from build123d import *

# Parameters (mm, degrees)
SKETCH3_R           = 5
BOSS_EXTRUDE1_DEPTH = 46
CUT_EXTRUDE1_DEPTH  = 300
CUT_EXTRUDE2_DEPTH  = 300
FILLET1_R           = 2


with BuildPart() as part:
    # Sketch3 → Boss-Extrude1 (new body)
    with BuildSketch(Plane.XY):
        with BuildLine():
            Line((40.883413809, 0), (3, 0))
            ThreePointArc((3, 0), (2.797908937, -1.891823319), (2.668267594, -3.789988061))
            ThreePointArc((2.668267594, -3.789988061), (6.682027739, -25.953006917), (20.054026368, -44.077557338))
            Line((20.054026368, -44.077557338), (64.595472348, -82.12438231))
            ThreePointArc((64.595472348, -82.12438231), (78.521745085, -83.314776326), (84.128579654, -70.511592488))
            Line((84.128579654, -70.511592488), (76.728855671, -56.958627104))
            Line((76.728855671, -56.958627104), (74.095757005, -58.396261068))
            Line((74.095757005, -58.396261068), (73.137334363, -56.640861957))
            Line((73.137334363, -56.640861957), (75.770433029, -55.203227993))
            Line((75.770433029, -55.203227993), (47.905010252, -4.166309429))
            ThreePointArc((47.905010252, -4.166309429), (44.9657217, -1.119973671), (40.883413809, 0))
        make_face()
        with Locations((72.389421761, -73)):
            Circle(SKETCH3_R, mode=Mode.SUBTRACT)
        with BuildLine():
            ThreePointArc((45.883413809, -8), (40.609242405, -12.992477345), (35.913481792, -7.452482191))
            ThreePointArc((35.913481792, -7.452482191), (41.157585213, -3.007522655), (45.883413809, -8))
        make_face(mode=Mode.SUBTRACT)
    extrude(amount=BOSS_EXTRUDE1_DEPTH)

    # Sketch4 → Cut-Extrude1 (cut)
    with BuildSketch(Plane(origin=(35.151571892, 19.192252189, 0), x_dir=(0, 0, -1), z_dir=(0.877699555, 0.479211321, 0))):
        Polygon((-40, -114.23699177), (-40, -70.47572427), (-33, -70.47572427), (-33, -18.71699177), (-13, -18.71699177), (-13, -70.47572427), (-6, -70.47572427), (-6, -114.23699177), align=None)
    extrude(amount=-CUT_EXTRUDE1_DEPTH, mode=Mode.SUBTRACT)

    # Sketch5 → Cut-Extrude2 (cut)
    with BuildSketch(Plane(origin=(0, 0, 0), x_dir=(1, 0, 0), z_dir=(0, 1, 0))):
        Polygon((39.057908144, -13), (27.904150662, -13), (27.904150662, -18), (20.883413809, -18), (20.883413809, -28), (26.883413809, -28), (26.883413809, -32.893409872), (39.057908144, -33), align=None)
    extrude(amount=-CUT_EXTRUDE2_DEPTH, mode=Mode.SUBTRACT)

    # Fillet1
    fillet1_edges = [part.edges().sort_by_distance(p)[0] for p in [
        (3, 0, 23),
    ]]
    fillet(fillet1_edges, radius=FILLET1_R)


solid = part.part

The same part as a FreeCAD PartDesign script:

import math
import FreeCAD as App
import Part
import Sketcher


def edges_at(feature, points):
    """Names of the edges that pass closest to the given points."""
    edges = feature.Shape.Edges
    near = lambda p: min(range(len(edges)), key=lambda i: edges[i].distToShape(Part.Vertex(*p))[0])
    return sorted({f"Edge{near(p) + 1}" for p in points})


def add_polygon(sketch, points):
    """Adds a closed chain of lines whose ends are joined by coincident constraints."""
    first, n = sketch.GeometryCount, len(points)
    for a, b in zip(points, points[1:] + points[:1]):
        sketch.addGeometry(Part.LineSegment(App.Vector(*a, 0), App.Vector(*b, 0)), False)
    for i in range(n):
        sketch.addConstraint(Sketcher.Constraint("Coincident", first + i, 2, first + (i + 1) % n, 1))

doc = App.newDocument("Part")
body = doc.addObject("PartDesign::Body", "Body")

# Sketch on XY plane
sketch1 = doc.addObject("Sketcher::SketchObject", "Sketch")
body.addObject(sketch1)
sketch1.AttachmentSupport = (doc.XY_Plane, [""])
sketch1.MapMode = "FlatFace"
sketch1.addGeometry([
    Part.LineSegment(App.Vector(40.883414, 0, 0), App.Vector(3, 0, 0)),  # 0
    Part.ArcOfCircle(Part.Circle(App.Vector(52.381463, -6.231803, 0), App.Vector(0, 0, 1), 49.773128), math.radians(172.807454), math.radians(177.188003)),  # 1
    Part.ArcOfCircle(Part.Circle(App.Vector(52.381463, -6.231803, 0), App.Vector(0, 0, 1), 49.773128), math.radians(177.188003), math.radians(229.496403)),  # 2
    Part.LineSegment(App.Vector(20.054026, -44.077557, 0), App.Vector(64.595472, -82.124382, 0)),  # 3
    Part.ArcOfCircle(Part.Circle(App.Vector(72.389422, -73, 0), App.Vector(0, 0, 1), 12), math.radians(-130.503597), math.radians(11.968113)),  # 4
    Part.LineSegment(App.Vector(84.12858, -70.511592, 0), App.Vector(76.728856, -56.958627, 0)),  # 5
    Part.LineSegment(App.Vector(76.728856, -56.958627, 0), App.Vector(74.095757, -58.396261, 0)),  # 6
    Part.LineSegment(App.Vector(74.095757, -58.396261, 0), App.Vector(73.137334, -56.640862, 0)),  # 7
    Part.LineSegment(App.Vector(73.137334, -56.640862, 0), App.Vector(75.770433, -55.203228, 0)),  # 8
    Part.LineSegment(App.Vector(75.770433, -55.203228, 0), App.Vector(47.90501, -4.166309, 0)),  # 9
    Part.ArcOfCircle(Part.Circle(App.Vector(40.883414, -8, 0), App.Vector(0, 0, 1), 8), math.radians(28.633905), math.radians(90)),  # 10
    Part.Circle(App.Vector(72.389422, -73, 0), App.Vector(0, 0, 1), 5),  # 11
    Part.ArcOfCircle(Part.Circle(App.Vector(40.883414, -8, 0), App.Vector(0, 0, 1), 5), math.radians(0), math.radians(173.713301)),  # 12
    Part.ArcOfCircle(Part.Circle(App.Vector(40.883414, -8, 0), App.Vector(0, 0, 1), 5), math.radians(173.713301), math.radians(360)),  # 13
], False)
sketch1.addConstraint([
    Sketcher.Constraint("Coincident", 0, 2, 1, 1),
    Sketcher.Constraint("Coincident", 1, 2, 2, 1),
    Sketcher.Constraint("Coincident", 2, 2, 3, 1),
    Sketcher.Constraint("Coincident", 3, 2, 4, 1),
    Sketcher.Constraint("Coincident", 4, 2, 5, 1),
    Sketcher.Constraint("Coincident", 5, 2, 6, 1),
    Sketcher.Constraint("Coincident", 6, 2, 7, 1),
    Sketcher.Constraint("Coincident", 7, 2, 8, 1),
    Sketcher.Constraint("Coincident", 8, 2, 9, 1),
    Sketcher.Constraint("Coincident", 9, 2, 10, 1),
    Sketcher.Constraint("Coincident", 10, 2, 0, 1),
    Sketcher.Constraint("Coincident", 12, 1, 13, 2),
    Sketcher.Constraint("Coincident", 13, 1, 12, 2),
    Sketcher.Constraint("Horizontal", 0),
    Sketcher.Constraint("Coincident", 2, 3, 1, 3),
    Sketcher.Constraint("Coincident", 11, 3, 4, 3),
    Sketcher.Constraint("Coincident", 12, 3, 10, 3),
    Sketcher.Constraint("PointOnObject", 0, 2, -1),
    Sketcher.Constraint("Diameter", 11, 10.0),
    Sketcher.Constraint("Radius", 4, 12.0),
    Sketcher.Constraint("Radius", 10, 8.0),
    Sketcher.Constraint("Radius", 12, 5.0),
    Sketcher.Constraint("Radius", 13, 5.0),
    Sketcher.Constraint("Distance", 6, 3.0),
    Sketcher.Constraint("Distance", 7, 2.0),
    Sketcher.Constraint("Distance", 8, 3.0),
    Sketcher.Constraint("DistanceY", 4, 3, -1, 1, 73.0),
    Sketcher.Constraint("DistanceX", -1, 1, 0, 2, 3.0),
    Sketcher.Constraint("DistanceY", 12, 1, -1, 1, 8.0),
    Sketcher.Constraint("Radius", 1, 49.773128),
    Sketcher.Constraint("DistanceX", 6, 2, 5, 2, 2.633099),
    Sketcher.Constraint("DistanceY", 6, 2, 7, 2, 1.755399),
    Sketcher.Constraint("DistanceY", 5, 2, 8, 2, 1.755399),
    Sketcher.Constraint("DistanceX", 0, 2, 0, 1, 37.883414),
    Sketcher.Constraint("DistanceX", -1, 1, 4, 3, 72.389422),
    Sketcher.Constraint("DistanceY", 1, 2, -1, 1, 3.789988),
    Sketcher.Constraint("DistanceX", -1, 1, 4, 2, 84.12858),
    Sketcher.Constraint("DistanceY", 6, 2, -1, 1, 58.396261),
    Sketcher.Constraint("DistanceX", -1, 1, 9, 2, 47.90501),
    Sketcher.Constraint("DistanceY", 9, 2, -1, 1, 4.166309),
    Sketcher.Constraint("DistanceX", -1, 1, 13, 1, 35.913482),
    Sketcher.Constraint("DistanceX", 2, 3, 4, 3, 20.007958),
    Sketcher.Constraint("DistanceX", 1, 2, 2, 2, 17.385759),
    Sketcher.Constraint("DistanceX", 3, 2, 4, 3, 7.793949),
    Sketcher.Constraint("DistanceX", 11, 3, 8, 2, 3.381011),
])
pad1 = doc.addObject("PartDesign::Pad", "Pad")
body.addObject(pad1)
pad1.Profile = sketch1
pad1.Length = 46

# Sketch on an angled plane
sketch2 = doc.addObject("Sketcher::SketchObject", "Sketch001")
body.addObject(sketch2)
sketch2.Placement = App.Placement(App.Vector(35.151572, 19.192252, 0), App.Rotation(App.Vector(0, 0, -1), App.Vector(-0.479211321, 0.877699555, 0), App.Vector(0.877699555, 0.479211321, 0), "ZXY"))
add_polygon(sketch2, [(-40, -70), (-40, -114), (-6, -114), (-6, -70), (-13, -70), (-13, -19), (-33, -19), (-33, -70)])  # lines 0-7
sketch2.addConstraint([
    Sketcher.Constraint("Vertical", 0),
    Sketcher.Constraint("Horizontal", 1),
    Sketcher.Constraint("Vertical", 2),
    Sketcher.Constraint("Horizontal", 3),
    Sketcher.Constraint("Vertical", 4),
    Sketcher.Constraint("Horizontal", 5),
    Sketcher.Constraint("Vertical", 6),
    Sketcher.Constraint("Horizontal", 7),
    Sketcher.Constraint("Horizontal", 3, 2, 6, 2),
    Sketcher.Constraint("Equal", 3, 7),
    Sketcher.Constraint("DistanceX", 1, 1, 1, 2, 34.0),
    Sketcher.Constraint("DistanceX", 3, 2, 3, 1, 7.0),
    Sketcher.Constraint("DistanceX", 0, 2, -1, 1, 40.0),
    Sketcher.Constraint("DistanceY", 1, 2, 4, 2, 95.52),
    Sketcher.Constraint("DistanceY", 0, 2, 0, 1, 43.761267),
    Sketcher.Constraint("DistanceY", 0, 2, -1, 1, 114.236992),
])
pocket1 = doc.addObject("PartDesign::Pocket", "Pocket")
body.addObject(pocket1)
pocket1.Profile = sketch2
pocket1.Length = 300

# Sketch on XZ plane
sketch3 = doc.addObject("Sketcher::SketchObject", "Sketch002")
body.addObject(sketch3)
sketch3.AttachmentSupport = (doc.XZ_Plane, [""])
sketch3.MapMode = "FlatFace"
add_polygon(sketch3, [(39.1, 13), (27.9, 13), (27.9, 18), (20.9, 18), (20.9, 28), (26.9, 28), (26.9, 32.9), (39.1, 33)])  # lines 0-7
sketch3.addConstraint([
    Sketcher.Constraint("Horizontal", 0),
    Sketcher.Constraint("Vertical", 1),
    Sketcher.Constraint("Horizontal", 2),
    Sketcher.Constraint("Vertical", 3),
    Sketcher.Constraint("Horizontal", 4),
    Sketcher.Constraint("Vertical", 5),
    Sketcher.Constraint("Vertical", 7),
    Sketcher.Constraint("DistanceX", 4, 1, 4, 2, 6.0),
    Sketcher.Constraint("DistanceY", 1, 1, 1, 2, 5.0),
    Sketcher.Constraint("DistanceY", 3, 1, 3, 2, 10.0),
    Sketcher.Constraint("DistanceY", 7, 2, 7, 1, 20.0),
    Sketcher.Constraint("DistanceY", -1, 1, 0, 2, 13.0),
    Sketcher.Constraint("DistanceY", 5, 1, 5, 2, 4.89341),
    Sketcher.Constraint("Distance", 6, 12.174961),
    Sketcher.Constraint("DistanceX", 0, 2, 0, 1, 11.153757),
    Sketcher.Constraint("DistanceX", -1, 1, 0, 2, 27.904151),
])
pocket2 = doc.addObject("PartDesign::Pocket", "Pocket001")
body.addObject(pocket2)
pocket2.Profile = sketch3
pocket2.Length = 300
pocket2.Reversed = True
doc.recompute()

fillet = doc.addObject("PartDesign::Fillet", "Fillet")
body.addObject(fillet)
fillet.Base = (pocket2, edges_at(pocket2, [(3, 0, 23)]))
fillet.Radius = 2

doc.recompute()
